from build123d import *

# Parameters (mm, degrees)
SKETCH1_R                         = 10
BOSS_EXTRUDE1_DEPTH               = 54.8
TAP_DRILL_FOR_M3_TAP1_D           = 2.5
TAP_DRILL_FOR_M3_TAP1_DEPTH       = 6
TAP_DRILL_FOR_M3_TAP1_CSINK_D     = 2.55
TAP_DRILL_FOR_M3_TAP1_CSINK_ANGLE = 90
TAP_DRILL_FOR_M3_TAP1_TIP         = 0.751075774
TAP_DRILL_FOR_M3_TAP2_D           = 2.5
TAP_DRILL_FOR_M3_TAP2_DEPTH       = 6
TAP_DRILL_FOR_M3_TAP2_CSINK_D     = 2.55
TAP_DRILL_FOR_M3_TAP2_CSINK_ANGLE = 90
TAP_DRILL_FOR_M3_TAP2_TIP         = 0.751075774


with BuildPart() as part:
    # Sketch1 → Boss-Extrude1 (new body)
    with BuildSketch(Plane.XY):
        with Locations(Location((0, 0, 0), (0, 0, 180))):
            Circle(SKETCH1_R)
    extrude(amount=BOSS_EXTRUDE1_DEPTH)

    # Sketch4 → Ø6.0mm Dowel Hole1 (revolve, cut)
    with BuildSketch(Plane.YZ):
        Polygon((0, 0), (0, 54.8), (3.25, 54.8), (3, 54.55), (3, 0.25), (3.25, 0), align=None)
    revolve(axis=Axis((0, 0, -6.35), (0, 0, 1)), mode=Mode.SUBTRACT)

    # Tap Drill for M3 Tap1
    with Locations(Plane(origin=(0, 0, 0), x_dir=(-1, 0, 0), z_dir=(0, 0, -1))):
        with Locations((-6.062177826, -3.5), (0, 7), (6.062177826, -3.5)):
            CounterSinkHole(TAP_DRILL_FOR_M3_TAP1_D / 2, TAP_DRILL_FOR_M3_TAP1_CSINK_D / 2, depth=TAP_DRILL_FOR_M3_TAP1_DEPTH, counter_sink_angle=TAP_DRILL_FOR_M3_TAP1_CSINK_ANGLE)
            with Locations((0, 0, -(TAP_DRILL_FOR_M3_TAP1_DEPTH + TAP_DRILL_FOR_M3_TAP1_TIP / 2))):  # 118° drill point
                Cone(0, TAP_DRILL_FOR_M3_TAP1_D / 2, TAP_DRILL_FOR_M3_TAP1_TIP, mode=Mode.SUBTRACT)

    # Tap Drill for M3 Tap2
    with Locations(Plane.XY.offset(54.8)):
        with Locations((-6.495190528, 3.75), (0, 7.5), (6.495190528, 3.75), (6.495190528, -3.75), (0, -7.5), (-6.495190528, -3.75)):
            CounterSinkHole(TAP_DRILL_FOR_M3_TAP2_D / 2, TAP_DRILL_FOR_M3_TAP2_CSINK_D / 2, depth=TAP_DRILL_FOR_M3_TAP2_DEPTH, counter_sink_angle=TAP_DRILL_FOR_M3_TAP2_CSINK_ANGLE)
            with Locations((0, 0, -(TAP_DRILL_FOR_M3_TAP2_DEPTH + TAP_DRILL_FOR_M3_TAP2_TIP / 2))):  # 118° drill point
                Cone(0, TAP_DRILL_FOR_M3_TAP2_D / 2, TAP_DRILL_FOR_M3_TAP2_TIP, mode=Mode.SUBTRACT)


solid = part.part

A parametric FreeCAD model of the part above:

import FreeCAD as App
import Part
import Sketcher
Q = App.Units.Quantity

doc = App.newDocument("Part")
params = doc.addObject("Spreadsheet::Sheet", "Params")
for row, (alias, value) in enumerate([
    ("sketch1_diameter", "20 mm"),
    ("pad1_length", "54.8 mm"),
    ("sketch2_height", "54.8 mm"),
    ("sketch2_height2", "54.3 mm"),
    ("groove_angle", "360 deg"),
    ("sketch3_diameter", "2.5 mm"),
    ("hole_diameter", "2.5 mm"),
    ("hole_depth", "6 mm"),
    ("hole_csink_diameter", "2.55 mm"),
    ("sketch4_diameter", "2.5 mm"),
    ("hole2_diameter", "2.5 mm"),
    ("hole2_depth", "6 mm"),
    ("hole2_csink_diameter", "2.55 mm"),
], start=1):
    params.set(f"A{row}", alias)
    params.set(f"B{row}", "=" + value)
    params.setAlias(f"B{row}", alias)

body = doc.addObject("PartDesign::Body", "Body")

# Sketch on XY plane
sketch1 = body.newObject("Sketcher::SketchObject", "Sketch")
sketch1.AttachmentSupport = (doc.getObject("XY_Plane"), [""])
sketch1.MapMode = "FlatFace"
sketch1.addGeometry(Part.Circle(App.Vector(0, 0, 0), App.Vector(0, 0, 1), 10), False)
sketch1.addConstraint([
    Sketcher.Constraint("Coincident", 0, 3, -1, 1),
    Sketcher.Constraint("Diameter", 0, Q("20 mm")),
])
sketch1.setExpression("Constraints[1]", "Params.sketch1_diameter")
pad1 = body.newObject("PartDesign::Pad", "Pad")
pad1.Profile = sketch1
pad1.setExpression("Length", "Params.pad1_length")

# Sketch on YZ plane
sketch2 = body.newObject("Sketcher::SketchObject", "Sketch001")
sketch2.AttachmentSupport = (doc.getObject("YZ_Plane"), [""])
sketch2.MapMode = "FlatFace"
sketch2.addGeometry([
    Part.LineSegment(App.Vector(0, 54.8, 0), App.Vector(0, 0, 0)),  # 0
    Part.LineSegment(App.Vector(0, 0, 0), App.Vector(3.25, 0, 0)),  # 1
    Part.LineSegment(App.Vector(3.25, 0, 0), App.Vector(3, 0.25, 0)),  # 2
    Part.LineSegment(App.Vector(3, 0.25, 0), App.Vector(3, 54.55, 0)),  # 3
    Part.LineSegment(App.Vector(3, 54.55, 0), App.Vector(3.25, 54.8, 0)),  # 4
    Part.LineSegment(App.Vector(3.25, 54.8, 0), App.Vector(0, 54.8, 0)),  # 5
], False)
sketch2.addConstraint([
    Sketcher.Constraint("Coincident", 0, 2, 1, 1),
    Sketcher.Constraint("Coincident", 1, 2, 2, 1),
    Sketcher.Constraint("Coincident", 2, 2, 3, 1),
    Sketcher.Constraint("Coincident", 3, 2, 4, 1),
    Sketcher.Constraint("Coincident", 4, 2, 5, 1),
    Sketcher.Constraint("Coincident", 5, 2, 0, 1),
    Sketcher.Constraint("Vertical", 0),
    Sketcher.Constraint("Horizontal", 1),
    Sketcher.Constraint("Vertical", 3),
    Sketcher.Constraint("Horizontal", 5),
    Sketcher.Constraint("Coincident", 0, 2, -1, 1),
    Sketcher.Constraint("Perpendicular", 2, 4),
    Sketcher.Constraint("Vertical", 1, 2, 4, 2),
    Sketcher.Constraint("Equal", 2, 4),
    Sketcher.Constraint("DistanceY", 0, 2, 0, 1, Q("54.8 mm")),
    Sketcher.Constraint("DistanceY", 3, 1, 3, 2, Q("54.3 mm")),
    Sketcher.Constraint("DistanceX", -1, 1, 2, 2, Q("3 mm")),
])
sketch2.setExpression("Constraints[14]", "Params.sketch2_height")
sketch2.setExpression("Constraints[15]", "Params.sketch2_height2")
groove = body.newObject("PartDesign::Groove", "Groove")
groove.Profile = sketch2
groove.ReferenceAxis = (sketch2, ["V_Axis"])
groove.setExpression("Angle", "Params.groove_angle")

# Sketch on XY plane
sketch3 = body.newObject("Sketcher::SketchObject", "Sketch002")
sketch3.AttachmentSupport = (doc.getObject("XY_Plane"), [""])
sketch3.MapMode = "FlatFace"
sketch3.addGeometry([
    Part.Circle(App.Vector(6.1, -3.5, 0), App.Vector(0, 0, 1), 1.2),
    Part.Circle(App.Vector(0, 7, 0), App.Vector(0, 0, 1), 1.2),
    Part.Circle(App.Vector(-6.1, -3.5, 0), App.Vector(0, 0, 1), 1.2),
], False)
sketch3.addConstraint([
    Sketcher.Constraint("Equal", 0, 1),
    Sketcher.Constraint("Equal", 1, 2),
    Sketcher.Constraint("Symmetric", 0, 3, 2, 3, -2),
    Sketcher.Constraint("PointOnObject", 1, 3, -2),
    Sketcher.Constraint("Diameter", 0, Q("2.5 mm")),
    Sketcher.Constraint("DistanceY", -1, 1, 1, 3, Q("7 mm")),
    Sketcher.Constraint("DistanceY", 0, 3, -1, 1, Q("3.5 mm")),
    Sketcher.Constraint("DistanceX", -1, 1, 0, 3, Q("6.062178 mm")),
])
sketch3.setExpression("Constraints[4]", "Params.sketch3_diameter")
doc.recompute()
hole = body.newObject("PartDesign::Hole", "Hole")
hole.Profile = sketch3
hole.ThreadType = "None"
hole.setExpression("Diameter", "Params.hole_diameter")
hole.DepthType = "Dimension"
hole.setExpression("Depth", "Params.hole_depth")
hole.DrillPoint = "Angled"
hole.DrillPointAngle = 118
hole.HoleCutType = "Countersink"
hole.setExpression("HoleCutDiameter", "Params.hole_csink_diameter")
hole.HoleCutCountersinkAngle = 90
hole.Reversed = True

# Sketch on XY plane
sketch4 = body.newObject("Sketcher::SketchObject", "Sketch003")
sketch4.AttachmentSupport = (doc.getObject("XY_Plane"), [""])
sketch4.MapMode = "FlatFace"
sketch4.AttachmentOffset = App.Placement(App.Vector(0, 0, 54.8), App.Rotation())
sketch4.addGeometry([
    Part.Circle(App.Vector(-6.5, 3.8, 0), App.Vector(0, 0, 1), 1.2),  # 0
    Part.Circle(App.Vector(0, 7.5, 0), App.Vector(0, 0, 1), 1.2),  # 1
    Part.Circle(App.Vector(6.5, 3.8, 0), App.Vector(0, 0, 1), 1.2),  # 2
    Part.Circle(App.Vector(6.5, -3.8, 0), App.Vector(0, 0, 1), 1.2),  # 3
    Part.Circle(App.Vector(0, -7.5, 0), App.Vector(0, 0, 1), 1.2),  # 4
    Part.Circle(App.Vector(-6.5, -3.8, 0), App.Vector(0, 0, 1), 1.2),  # 5
], False)
sketch4.addConstraint([
    Sketcher.Constraint("Equal", 0, 1),
    Sketcher.Constraint("Equal", 1, 2),
    Sketcher.Constraint("Equal", 2, 3),
    Sketcher.Constraint("Equal", 3, 4),
    Sketcher.Constraint("Equal", 4, 5),
    Sketcher.Constraint("Symmetric", 0, 3, 3, 3, -1, 1),
    Sketcher.Constraint("Symmetric", 1, 3, 4, 3, -1, 1),
    Sketcher.Constraint("Symmetric", 2, 3, 5, 3, -1, 1),
    Sketcher.Constraint("Symmetric", 0, 3, 2, 3, -2),
    Sketcher.Constraint("PointOnObject", 1, 3, -2),
    Sketcher.Constraint("Diameter", 0, Q("2.5 mm")),
    Sketcher.Constraint("DistanceY", 4, 3, 1, 3, Q("15 mm")),
    Sketcher.Constraint("DistanceY", 3, 3, 2, 3, Q("7.5 mm")),
    Sketcher.Constraint("DistanceX", 0, 3, -1, 1, Q("6.495191 mm")),
])
sketch4.setExpression("Constraints[10]", "Params.sketch4_diameter")
doc.recompute()
hole2 = body.newObject("PartDesign::Hole", "Hole001")
hole2.Profile = sketch4
hole2.ThreadType = "None"
hole2.setExpression("Diameter", "Params.hole2_diameter")
hole2.DepthType = "Dimension"
hole2.setExpression("Depth", "Params.hole2_depth")
hole2.DrillPoint = "Angled"
hole2.DrillPointAngle = 118
hole2.HoleCutType = "Countersink"
hole2.setExpression("HoleCutDiameter", "Params.hole2_csink_diameter")
hole2.HoleCutCountersinkAngle = 90

doc.recompute()
